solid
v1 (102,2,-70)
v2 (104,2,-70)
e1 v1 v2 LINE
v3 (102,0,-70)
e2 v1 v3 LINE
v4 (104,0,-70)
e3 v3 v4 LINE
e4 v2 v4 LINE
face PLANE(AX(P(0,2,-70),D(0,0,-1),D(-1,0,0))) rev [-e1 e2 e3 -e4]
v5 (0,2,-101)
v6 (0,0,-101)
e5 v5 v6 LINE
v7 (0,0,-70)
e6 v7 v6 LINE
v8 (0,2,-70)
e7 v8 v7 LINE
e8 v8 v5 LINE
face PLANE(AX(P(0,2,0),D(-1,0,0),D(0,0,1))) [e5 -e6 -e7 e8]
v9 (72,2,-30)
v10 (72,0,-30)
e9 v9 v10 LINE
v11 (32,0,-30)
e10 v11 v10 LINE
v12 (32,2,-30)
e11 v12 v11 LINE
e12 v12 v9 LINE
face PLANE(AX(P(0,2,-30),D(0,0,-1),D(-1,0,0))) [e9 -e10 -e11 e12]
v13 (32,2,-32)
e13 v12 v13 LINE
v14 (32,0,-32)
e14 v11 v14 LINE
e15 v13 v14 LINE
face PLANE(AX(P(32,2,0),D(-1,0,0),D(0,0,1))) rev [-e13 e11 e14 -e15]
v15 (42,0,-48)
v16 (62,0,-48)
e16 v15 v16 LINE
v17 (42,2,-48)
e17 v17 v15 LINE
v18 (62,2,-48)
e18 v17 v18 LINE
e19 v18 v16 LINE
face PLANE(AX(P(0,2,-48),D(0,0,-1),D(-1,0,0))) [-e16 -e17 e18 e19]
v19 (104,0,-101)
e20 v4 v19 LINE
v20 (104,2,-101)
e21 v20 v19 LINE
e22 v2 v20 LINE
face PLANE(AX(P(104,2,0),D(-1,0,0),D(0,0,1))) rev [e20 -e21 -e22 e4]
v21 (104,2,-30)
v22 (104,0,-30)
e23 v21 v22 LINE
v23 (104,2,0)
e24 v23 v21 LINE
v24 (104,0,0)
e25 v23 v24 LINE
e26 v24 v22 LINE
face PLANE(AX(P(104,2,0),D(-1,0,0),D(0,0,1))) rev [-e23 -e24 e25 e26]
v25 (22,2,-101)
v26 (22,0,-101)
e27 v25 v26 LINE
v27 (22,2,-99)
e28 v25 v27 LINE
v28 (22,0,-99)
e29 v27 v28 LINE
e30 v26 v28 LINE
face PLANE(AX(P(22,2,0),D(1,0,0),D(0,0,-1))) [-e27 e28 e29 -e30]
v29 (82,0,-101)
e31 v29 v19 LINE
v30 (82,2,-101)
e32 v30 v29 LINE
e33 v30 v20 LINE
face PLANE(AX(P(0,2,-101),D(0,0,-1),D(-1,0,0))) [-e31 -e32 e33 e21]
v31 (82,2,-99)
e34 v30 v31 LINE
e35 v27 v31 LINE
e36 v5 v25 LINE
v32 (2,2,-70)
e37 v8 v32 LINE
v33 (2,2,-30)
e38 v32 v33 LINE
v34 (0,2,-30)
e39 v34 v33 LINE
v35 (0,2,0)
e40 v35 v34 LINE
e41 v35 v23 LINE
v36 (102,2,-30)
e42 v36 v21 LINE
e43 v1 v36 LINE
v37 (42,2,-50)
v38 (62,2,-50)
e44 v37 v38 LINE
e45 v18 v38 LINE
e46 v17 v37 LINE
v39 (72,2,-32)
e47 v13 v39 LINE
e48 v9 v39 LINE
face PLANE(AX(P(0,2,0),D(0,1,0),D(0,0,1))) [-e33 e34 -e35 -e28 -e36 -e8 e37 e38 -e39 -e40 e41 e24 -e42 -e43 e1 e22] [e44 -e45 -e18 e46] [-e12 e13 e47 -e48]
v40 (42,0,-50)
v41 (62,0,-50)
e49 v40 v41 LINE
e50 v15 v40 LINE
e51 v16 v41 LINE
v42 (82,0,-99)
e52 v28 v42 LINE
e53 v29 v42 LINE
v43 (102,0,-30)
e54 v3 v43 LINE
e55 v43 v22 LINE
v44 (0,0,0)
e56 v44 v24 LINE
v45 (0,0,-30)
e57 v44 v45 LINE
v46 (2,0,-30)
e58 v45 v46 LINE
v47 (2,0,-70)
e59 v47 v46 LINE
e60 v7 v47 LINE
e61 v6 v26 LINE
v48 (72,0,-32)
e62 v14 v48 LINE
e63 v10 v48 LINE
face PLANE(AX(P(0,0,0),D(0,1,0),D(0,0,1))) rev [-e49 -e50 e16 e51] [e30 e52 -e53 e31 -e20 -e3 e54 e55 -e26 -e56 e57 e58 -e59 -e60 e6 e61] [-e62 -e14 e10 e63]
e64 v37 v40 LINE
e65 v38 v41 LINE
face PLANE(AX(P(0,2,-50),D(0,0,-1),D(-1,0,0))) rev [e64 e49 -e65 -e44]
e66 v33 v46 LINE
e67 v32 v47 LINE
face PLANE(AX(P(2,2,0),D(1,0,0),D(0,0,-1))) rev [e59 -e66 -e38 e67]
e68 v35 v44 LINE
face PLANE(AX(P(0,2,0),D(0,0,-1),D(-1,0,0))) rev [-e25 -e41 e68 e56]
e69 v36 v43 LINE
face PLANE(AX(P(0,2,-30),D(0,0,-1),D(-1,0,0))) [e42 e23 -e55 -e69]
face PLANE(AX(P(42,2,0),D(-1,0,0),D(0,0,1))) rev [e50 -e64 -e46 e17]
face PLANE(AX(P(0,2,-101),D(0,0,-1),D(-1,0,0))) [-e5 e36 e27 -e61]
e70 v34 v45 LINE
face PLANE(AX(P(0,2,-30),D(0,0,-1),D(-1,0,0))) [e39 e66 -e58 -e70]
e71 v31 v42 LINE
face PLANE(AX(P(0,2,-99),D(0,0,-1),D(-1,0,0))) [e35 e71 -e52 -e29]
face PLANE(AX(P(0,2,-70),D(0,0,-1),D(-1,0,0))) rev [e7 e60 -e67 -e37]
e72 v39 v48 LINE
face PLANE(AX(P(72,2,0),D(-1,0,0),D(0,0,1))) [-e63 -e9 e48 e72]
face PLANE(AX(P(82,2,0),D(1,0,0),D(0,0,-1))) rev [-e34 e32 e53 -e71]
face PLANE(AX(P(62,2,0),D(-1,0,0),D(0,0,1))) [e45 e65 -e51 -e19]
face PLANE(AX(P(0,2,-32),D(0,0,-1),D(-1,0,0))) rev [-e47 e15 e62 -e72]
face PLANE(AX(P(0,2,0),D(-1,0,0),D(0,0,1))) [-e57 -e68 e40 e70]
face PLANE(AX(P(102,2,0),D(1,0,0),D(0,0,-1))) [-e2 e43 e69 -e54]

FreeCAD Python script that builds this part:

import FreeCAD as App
import Part
import Sketcher

doc = App.newDocument("Part")
body = doc.addObject("PartDesign::Body", "Body")

sketch1 = body.newObject("Sketcher::SketchObject", "Sketch")
sketch1.AttachmentSupport = (doc.getObject("XZ_Plane"), [""])
sketch1.MapMode = "FlatFace"
sketch1.addGeometry(Part.LineSegment(App.Vector(0, -30, 0), App.Vector(0, 0, 0)), False)
sketch1.addGeometry(Part.LineSegment(App.Vector(0, 0, 0), App.Vector(104, 0, 0)), False)
sketch1.addGeometry(Part.LineSegment(App.Vector(104, 0, 0), App.Vector(104, -30, 0)), False)
sketch1.addGeometry(Part.LineSegment(App.Vector(104, -30, 0), App.Vector(102, -30, 0)), False)
sketch1.addGeometry(Part.LineSegment(App.Vector(102, -30, 0), App.Vector(102, -70, 0)), False)
sketch1.addGeometry(Part.LineSegment(App.Vector(102, -70, 0), App.Vector(104, -70, 0)), False)
sketch1.addGeometry(Part.LineSegment(App.Vector(104, -70, 0), App.Vector(104, -101, 0)), False)
sketch1.addGeometry(Part.LineSegment(App.Vector(104, -101, 0), App.Vector(82, -101, 0)), False)
sketch1.addGeometry(Part.LineSegment(App.Vector(82, -101, 0), App.Vector(82, -99, 0)), False)
sketch1.addGeometry(Part.LineSegment(App.Vector(82, -99, 0), App.Vector(22, -99, 0)), False)
sketch1.addGeometry(Part.LineSegment(App.Vector(22, -99, 0), App.Vector(22, -101, 0)), False)
sketch1.addGeometry(Part.LineSegment(App.Vector(22, -101, 0), App.Vector(0, -101, 0)), False)
sketch1.addGeometry(Part.LineSegment(App.Vector(0, -101, 0), App.Vector(0, -70, 0)), False)
sketch1.addGeometry(Part.LineSegment(App.Vector(0, -70, 0), App.Vector(2, -70, 0)), False)
sketch1.addGeometry(Part.LineSegment(App.Vector(2, -70, 0), App.Vector(2, -30, 0)), False)
sketch1.addGeometry(Part.LineSegment(App.Vector(2, -30, 0), App.Vector(0, -30, 0)), False)
sketch1.addGeometry(Part.LineSegment(App.Vector(72, -30, 0), App.Vector(32, -30, 0)), False)
sketch1.addGeometry(Part.LineSegment(App.Vector(32, -30, 0), App.Vector(32, -32, 0)), False)
sketch1.addGeometry(Part.LineSegment(App.Vector(32, -32, 0), App.Vector(72, -32, 0)), False)
sketch1.addGeometry(Part.LineSegment(App.Vector(72, -32, 0), App.Vector(72, -30, 0)), False)
sketch1.addGeometry(Part.LineSegment(App.Vector(62, -48, 0), App.Vector(42, -48, 0)), False)
sketch1.addGeometry(Part.LineSegment(App.Vector(42, -48, 0), App.Vector(42, -50, 0)), False)
sketch1.addGeometry(Part.LineSegment(App.Vector(42, -50, 0), App.Vector(62, -50, 0)), False)
sketch1.addGeometry(Part.LineSegment(App.Vector(62, -50, 0), App.Vector(62, -48, 0)), False)
sketch1.addConstraint(Sketcher.Constraint("Coincident", 0, 2, 1, 1))
sketch1.addConstraint(Sketcher.Constraint("Coincident", 1, 2, 2, 1))
sketch1.addConstraint(Sketcher.Constraint("Coincident", 2, 2, 3, 1))
sketch1.addConstraint(Sketcher.Constraint("Coincident", 3, 2, 4, 1))
sketch1.addConstraint(Sketcher.Constraint("Coincident", 4, 2, 5, 1))
sketch1.addConstraint(Sketcher.Constraint("Coincident", 5, 2, 6, 1))
sketch1.addConstraint(Sketcher.Constraint("Coincident", 6, 2, 7, 1))
sketch1.addConstraint(Sketcher.Constraint("Coincident", 7, 2, 8, 1))
sketch1.addConstraint(Sketcher.Constraint("Coincident", 8, 2, 9, 1))
sketch1.addConstraint(Sketcher.Constraint("Coincident", 9, 2, 10, 1))
sketch1.addConstraint(Sketcher.Constraint("Coincident", 10, 2, 11, 1))
sketch1.addConstraint(Sketcher.Constraint("Coincident", 11, 2, 12, 1))
sketch1.addConstraint(Sketcher.Constraint("Coincident", 12, 2, 13, 1))
sketch1.addConstraint(Sketcher.Constraint("Coincident", 13, 2, 14, 1))
sketch1.addConstraint(Sketcher.Constraint("Coincident", 14, 2, 15, 1))
sketch1.addConstraint(Sketcher.Constraint("Coincident", 15, 2, 0, 1))
sketch1.addConstraint(Sketcher.Constraint("Coincident", 16, 2, 17, 1))
sketch1.addConstraint(Sketcher.Constraint("Coincident", 17, 2, 18, 1))
sketch1.addConstraint(Sketcher.Constraint("Coincident", 18, 2, 19, 1))
sketch1.addConstraint(Sketcher.Constraint("Coincident", 19, 2, 16, 1))
sketch1.addConstraint(Sketcher.Constraint("Coincident", 20, 2, 21, 1))
sketch1.addConstraint(Sketcher.Constraint("Coincident", 21, 2, 22, 1))
sketch1.addConstraint(Sketcher.Constraint("Coincident", 22, 2, 23, 1))
sketch1.addConstraint(Sketcher.Constraint("Coincident", 23, 2, 20, 1))
sketch1.addConstraint(Sketcher.Constraint("Vertical", 0))
sketch1.addConstraint(Sketcher.Constraint("Horizontal", 1))
sketch1.addConstraint(Sketcher.Constraint("Vertical", 2))
sketch1.addConstraint(Sketcher.Constraint("Horizontal", 3))
sketch1.addConstraint(Sketcher.Constraint("Vertical", 4))
sketch1.addConstraint(Sketcher.Constraint("Horizontal", 5))
sketch1.addConstraint(Sketcher.Constraint("Vertical", 6))
sketch1.addConstraint(Sketcher.Constraint("Horizontal", 7))
sketch1.addConstraint(Sketcher.Constraint("Vertical", 8))
sketch1.addConstraint(Sketcher.Constraint("Horizontal", 9))
sketch1.addConstraint(Sketcher.Constraint("Vertical", 10))
sketch1.addConstraint(Sketcher.Constraint("Horizontal", 11))
sketch1.addConstraint(Sketcher.Constraint("Vertical", 12))
sketch1.addConstraint(Sketcher.Constraint("Horizontal", 13))
sketch1.addConstraint(Sketcher.Constraint("Vertical", 14))
sketch1.addConstraint(Sketcher.Constraint("Horizontal", 15))
sketch1.addConstraint(Sketcher.Constraint("Horizontal", 16))
sketch1.addConstraint(Sketcher.Constraint("Vertical", 17))
sketch1.addConstraint(Sketcher.Constraint("Horizontal", 18))
sketch1.addConstraint(Sketcher.Constraint("Vertical", 19))
sketch1.addConstraint(Sketcher.Constraint("Horizontal", 20))
sketch1.addConstraint(Sketcher.Constraint("Vertical", 21))
sketch1.addConstraint(Sketcher.Constraint("Horizontal", 22))
sketch1.addConstraint(Sketcher.Constraint("Vertical", 23))
sketch1.addConstraint(Sketcher.Constraint("Coincident", 0, 2, -1, 1))
sketch1.addConstraint(Sketcher.Constraint("PointOnObject", 11, 2, -2))
sketch1.addConstraint(Sketcher.Constraint("Horizontal", 7, 2, 10, 2))
sketch1.addConstraint(Sketcher.Constraint("Horizontal", 5, 2, 12, 2))
sketch1.addConstraint(Sketcher.Constraint("Horizontal", 3, 2, 14, 2))
sketch1.addConstraint(Sketcher.Constraint("Horizontal", 15, 2, 16, 2))
sketch1.addConstraint(Sketcher.Constraint("Vertical", 2, 2, 5, 2))
sketch1.addConstraint(Sketcher.Constraint("Equal", 7, 11))
sketch1.addConstraint(Sketcher.Constraint("Equal", 5, 13))
sketch1.addConstraint(Sketcher.Constraint("Equal", 18, 4))
sketch1.addConstraint(Sketcher.Constraint("Equal", 15, 8))
sketch1.addConstraint(Sketcher.Constraint("Equal", 10, 17))
sketch1.addConstraint(Sketcher.Constraint("Equal", 19, 21))
sketch1.addConstraint(Sketcher.Constraint("DistanceX", 1, 1, 1, 2, 104.0))
sketch1.addConstraint(Sketcher.Constraint("DistanceX", 3, 2, 3, 1, 2.0))
sketch1.addConstraint(Sketcher.Constraint("DistanceX", 7, 2, 7, 1, 22.0))
sketch1.addConstraint(Sketcher.Constraint("DistanceX", 16, 2, 16, 1, 40.0))
sketch1.addConstraint(Sketcher.Constraint("DistanceX", 20, 2, 20, 1, 20.0))
sketch1.addConstraint(Sketcher.Constraint("DistanceY", 0, 1, 0, 2, 30.0))
sketch1.addConstraint(Sketcher.Constraint("DistanceY", 6, 2, 6, 1, 31.0))
sketch1.addConstraint(Sketcher.Constraint("DistanceX", -1, 1, 16, 2, 32.0))
sketch1.addConstraint(Sketcher.Constraint("DistanceX", -1, 1, 20, 2, 42.0))
sketch1.addConstraint(Sketcher.Constraint("DistanceY", 20, 2, -1, 1, 48.0))
pad1 = body.newObject("PartDesign::Pad", "Pad")
pad1.Profile = sketch1
pad1.Length = 2
pad1.Reversed = True

doc.recompute()
